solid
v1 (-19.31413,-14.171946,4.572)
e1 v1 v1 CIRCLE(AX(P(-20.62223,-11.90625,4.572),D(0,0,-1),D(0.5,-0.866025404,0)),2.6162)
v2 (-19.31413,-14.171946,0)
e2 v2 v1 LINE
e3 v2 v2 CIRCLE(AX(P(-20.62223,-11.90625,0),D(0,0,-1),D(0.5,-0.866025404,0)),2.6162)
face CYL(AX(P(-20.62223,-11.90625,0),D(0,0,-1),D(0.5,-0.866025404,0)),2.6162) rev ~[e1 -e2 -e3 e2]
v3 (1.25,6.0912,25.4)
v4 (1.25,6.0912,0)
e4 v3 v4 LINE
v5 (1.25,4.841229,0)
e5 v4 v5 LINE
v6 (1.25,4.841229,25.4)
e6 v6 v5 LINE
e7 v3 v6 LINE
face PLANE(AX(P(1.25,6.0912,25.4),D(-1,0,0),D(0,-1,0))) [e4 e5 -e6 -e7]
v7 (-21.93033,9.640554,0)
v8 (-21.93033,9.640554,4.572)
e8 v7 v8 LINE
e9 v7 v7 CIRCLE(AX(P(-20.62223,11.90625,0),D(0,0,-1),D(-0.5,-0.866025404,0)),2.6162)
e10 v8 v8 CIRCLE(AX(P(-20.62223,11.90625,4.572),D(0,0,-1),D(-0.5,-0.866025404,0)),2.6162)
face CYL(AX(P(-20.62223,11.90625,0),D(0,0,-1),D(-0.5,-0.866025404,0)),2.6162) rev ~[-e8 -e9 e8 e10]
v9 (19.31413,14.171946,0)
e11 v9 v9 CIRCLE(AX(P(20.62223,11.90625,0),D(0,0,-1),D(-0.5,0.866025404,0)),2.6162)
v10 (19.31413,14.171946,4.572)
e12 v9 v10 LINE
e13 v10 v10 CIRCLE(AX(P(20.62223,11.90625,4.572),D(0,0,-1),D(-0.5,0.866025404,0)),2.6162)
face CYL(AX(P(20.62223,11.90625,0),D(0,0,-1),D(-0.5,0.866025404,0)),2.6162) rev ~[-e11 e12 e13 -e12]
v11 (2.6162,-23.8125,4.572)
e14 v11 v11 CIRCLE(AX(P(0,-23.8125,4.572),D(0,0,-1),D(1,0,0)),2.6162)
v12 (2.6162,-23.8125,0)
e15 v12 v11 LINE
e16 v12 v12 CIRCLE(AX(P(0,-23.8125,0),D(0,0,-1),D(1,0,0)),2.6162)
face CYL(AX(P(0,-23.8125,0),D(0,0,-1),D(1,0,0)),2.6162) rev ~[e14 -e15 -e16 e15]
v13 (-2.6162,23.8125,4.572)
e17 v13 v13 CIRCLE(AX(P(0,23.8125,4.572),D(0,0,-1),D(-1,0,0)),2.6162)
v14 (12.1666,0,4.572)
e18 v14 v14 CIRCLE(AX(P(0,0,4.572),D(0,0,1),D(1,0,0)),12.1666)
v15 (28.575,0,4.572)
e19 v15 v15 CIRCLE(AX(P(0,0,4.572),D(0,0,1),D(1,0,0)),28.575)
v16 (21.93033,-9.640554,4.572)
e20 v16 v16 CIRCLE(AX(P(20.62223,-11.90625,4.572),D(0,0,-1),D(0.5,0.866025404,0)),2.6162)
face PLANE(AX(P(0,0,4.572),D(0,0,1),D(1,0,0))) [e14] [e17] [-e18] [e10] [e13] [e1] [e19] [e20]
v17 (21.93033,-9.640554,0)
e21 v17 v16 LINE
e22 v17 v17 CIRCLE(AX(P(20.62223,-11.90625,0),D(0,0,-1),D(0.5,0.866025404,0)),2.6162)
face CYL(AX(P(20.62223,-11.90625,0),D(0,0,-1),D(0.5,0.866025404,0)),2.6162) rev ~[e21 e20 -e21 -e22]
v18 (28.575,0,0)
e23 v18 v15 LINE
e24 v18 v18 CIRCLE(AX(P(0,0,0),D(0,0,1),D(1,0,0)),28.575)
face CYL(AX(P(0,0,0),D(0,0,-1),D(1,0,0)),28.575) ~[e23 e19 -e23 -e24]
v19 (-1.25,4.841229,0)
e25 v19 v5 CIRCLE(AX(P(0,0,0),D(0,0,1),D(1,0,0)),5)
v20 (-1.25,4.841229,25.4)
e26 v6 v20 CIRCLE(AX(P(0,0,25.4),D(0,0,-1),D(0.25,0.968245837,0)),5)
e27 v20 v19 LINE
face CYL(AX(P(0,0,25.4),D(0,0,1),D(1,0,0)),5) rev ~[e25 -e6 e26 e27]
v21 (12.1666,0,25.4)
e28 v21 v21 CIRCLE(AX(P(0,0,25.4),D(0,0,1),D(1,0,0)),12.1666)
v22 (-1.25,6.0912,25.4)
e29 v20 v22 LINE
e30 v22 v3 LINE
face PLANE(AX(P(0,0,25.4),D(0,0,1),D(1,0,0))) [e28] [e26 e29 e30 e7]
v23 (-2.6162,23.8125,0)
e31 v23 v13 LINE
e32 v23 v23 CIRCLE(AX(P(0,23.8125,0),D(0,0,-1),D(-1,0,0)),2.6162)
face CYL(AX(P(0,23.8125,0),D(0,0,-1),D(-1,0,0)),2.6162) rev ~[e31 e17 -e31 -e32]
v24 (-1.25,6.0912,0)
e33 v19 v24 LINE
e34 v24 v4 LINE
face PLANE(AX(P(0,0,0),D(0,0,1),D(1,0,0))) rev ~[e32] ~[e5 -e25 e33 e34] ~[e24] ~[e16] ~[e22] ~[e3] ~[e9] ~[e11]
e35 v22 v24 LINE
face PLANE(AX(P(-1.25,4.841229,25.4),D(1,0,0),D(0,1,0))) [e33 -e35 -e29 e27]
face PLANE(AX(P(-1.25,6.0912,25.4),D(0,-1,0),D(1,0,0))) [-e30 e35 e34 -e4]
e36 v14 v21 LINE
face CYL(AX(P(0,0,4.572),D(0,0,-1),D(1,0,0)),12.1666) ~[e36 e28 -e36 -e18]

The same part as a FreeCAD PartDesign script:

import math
import FreeCAD as App
import Part
import Sketcher
Q = App.Units.Quantity

doc = App.newDocument("Part")
body = doc.addObject("PartDesign::Body", "Body")

sketch1 = body.newObject("Sketcher::SketchObject", "Sketch")
sketch1.AttachmentSupport = (doc.getObject("XY_Plane"), [""])
sketch1.MapMode = "FlatFace"
sketch1.addGeometry(Part.Circle(App.Vector(0, 0, 0), App.Vector(0, 0, 1), 28.575), False)
sketch1.addConstraint(Sketcher.Constraint("Coincident", 0, 3, -1, 1))
sketch1.addConstraint(Sketcher.Constraint("Diameter", 0, Q("2.25 in")))
pad1 = body.newObject("PartDesign::Pad", "Pad")
pad1.Profile = sketch1
pad1.Length = Q("0.18 in")

sketch2 = body.newObject("Sketcher::SketchObject", "Sketch001")
sketch2.AttachmentSupport = (doc.getObject("XY_Plane"), [""])
sketch2.MapMode = "FlatFace"
sketch2.AttachmentOffset = App.Placement(App.Vector(0, 0, 0.18 * 25.4), App.Rotation())
sketch2.addGeometry(Part.Circle(App.Vector(0, 0, 0), App.Vector(0, 0, 1), 12.1666), False)
sketch2.addConstraint(Sketcher.Constraint("Coincident", 0, 3, -1, 1))
sketch2.addConstraint(Sketcher.Constraint("Diameter", 0, Q("0.958 in")))
pad2 = body.newObject("PartDesign::Pad", "Pad001")
pad2.Profile = sketch2
pad2.Length = Q("0.82 in")

sketch3 = body.newObject("Sketcher::SketchObject", "Sketch002")
sketch3.AttachmentSupport = (doc.getObject("XY_Plane"), [""])
sketch3.MapMode = "FlatFace"
sketch3.AttachmentOffset = App.Placement(App.Vector(0, 0, 1 * 25.4), App.Rotation())
sketch3.addGeometry(Part.ArcOfCircle(Part.Circle(App.Vector(0, 0, 0), App.Vector(0, 0, 1), 5), math.radians(104.477512), math.radians(435.522488)), False)
sketch3.addGeometry(Part.LineSegment(App.Vector(1.25, 4.841229, 0), App.Vector(1.25, 6.0912, 0)), False)
sketch3.addGeometry(Part.LineSegment(App.Vector(1.25, 6.0912, 0), App.Vector(-1.25, 6.0912, 0)), False)
sketch3.addGeometry(Part.LineSegment(App.Vector(-1.25, 6.0912, 0), App.Vector(-1.25, 4.841229, 0)), False)
sketch3.addConstraint(Sketcher.Constraint("Coincident", 0, 2, 1, 1))
sketch3.addConstraint(Sketcher.Constraint("Coincident", 1, 2, 2, 1))
sketch3.addConstraint(Sketcher.Constraint("Coincident", 2, 2, 3, 1))
sketch3.addConstraint(Sketcher.Constraint("Coincident", 3, 2, 0, 1))
sketch3.addConstraint(Sketcher.Constraint("Vertical", 1))
sketch3.addConstraint(Sketcher.Constraint("Horizontal", 2))
sketch3.addConstraint(Sketcher.Constraint("Vertical", 3))
sketch3.addConstraint(Sketcher.Constraint("Coincident", 0, 3, -1, 1))
sketch3.addConstraint(Sketcher.Constraint("Horizontal", 0, 2, 3, 2))
sketch3.addConstraint(Sketcher.Constraint("Radius", 0, 5.0))
sketch3.addConstraint(Sketcher.Constraint("DistanceX", 2, 2, 2, 1, 2.5))
sketch3.addConstraint(Sketcher.Constraint("DistanceY", 1, 1, 1, 2, Q("0.0492 in")))
pocket1 = body.newObject("PartDesign::Pocket", "Pocket")
pocket1.Profile = sketch3
pocket1.Type = "ThroughAll"

sketch4 = body.newObject("Sketcher::SketchObject", "Sketch003")
sketch4.AttachmentSupport = (doc.getObject("XY_Plane"), [""])
sketch4.MapMode = "FlatFace"
sketch4.addGeometry(Part.Circle(App.Vector(0, 23.8125, 0), App.Vector(0, 0, 1), 2.6162), False)
sketch4.addConstraint(Sketcher.Constraint("PointOnObject", 0, 3, -2))
sketch4.addConstraint(Sketcher.Constraint("Diameter", 0, Q("0.206 in")))
sketch4.addConstraint(Sketcher.Constraint("DistanceY", -1, 1, 0, 3, Q("0.9375 in")))
pocket2 = body.newObject("PartDesign::Pocket", "Pocket001")
pocket2.Profile = sketch4
pocket2.Type = "ThroughAll"
pocket2.Reversed = True
doc.recompute()

polarpattern = body.newObject("PartDesign::PolarPattern", "PolarPattern")
polarpattern.Originals = [pocket2]
polarpattern.Axis = (doc.getObject("Z_Axis"), [""])
polarpattern.Angle = 360
polarpattern.Occurrences = 6
body.Tip = polarpattern

doc.recompute()
